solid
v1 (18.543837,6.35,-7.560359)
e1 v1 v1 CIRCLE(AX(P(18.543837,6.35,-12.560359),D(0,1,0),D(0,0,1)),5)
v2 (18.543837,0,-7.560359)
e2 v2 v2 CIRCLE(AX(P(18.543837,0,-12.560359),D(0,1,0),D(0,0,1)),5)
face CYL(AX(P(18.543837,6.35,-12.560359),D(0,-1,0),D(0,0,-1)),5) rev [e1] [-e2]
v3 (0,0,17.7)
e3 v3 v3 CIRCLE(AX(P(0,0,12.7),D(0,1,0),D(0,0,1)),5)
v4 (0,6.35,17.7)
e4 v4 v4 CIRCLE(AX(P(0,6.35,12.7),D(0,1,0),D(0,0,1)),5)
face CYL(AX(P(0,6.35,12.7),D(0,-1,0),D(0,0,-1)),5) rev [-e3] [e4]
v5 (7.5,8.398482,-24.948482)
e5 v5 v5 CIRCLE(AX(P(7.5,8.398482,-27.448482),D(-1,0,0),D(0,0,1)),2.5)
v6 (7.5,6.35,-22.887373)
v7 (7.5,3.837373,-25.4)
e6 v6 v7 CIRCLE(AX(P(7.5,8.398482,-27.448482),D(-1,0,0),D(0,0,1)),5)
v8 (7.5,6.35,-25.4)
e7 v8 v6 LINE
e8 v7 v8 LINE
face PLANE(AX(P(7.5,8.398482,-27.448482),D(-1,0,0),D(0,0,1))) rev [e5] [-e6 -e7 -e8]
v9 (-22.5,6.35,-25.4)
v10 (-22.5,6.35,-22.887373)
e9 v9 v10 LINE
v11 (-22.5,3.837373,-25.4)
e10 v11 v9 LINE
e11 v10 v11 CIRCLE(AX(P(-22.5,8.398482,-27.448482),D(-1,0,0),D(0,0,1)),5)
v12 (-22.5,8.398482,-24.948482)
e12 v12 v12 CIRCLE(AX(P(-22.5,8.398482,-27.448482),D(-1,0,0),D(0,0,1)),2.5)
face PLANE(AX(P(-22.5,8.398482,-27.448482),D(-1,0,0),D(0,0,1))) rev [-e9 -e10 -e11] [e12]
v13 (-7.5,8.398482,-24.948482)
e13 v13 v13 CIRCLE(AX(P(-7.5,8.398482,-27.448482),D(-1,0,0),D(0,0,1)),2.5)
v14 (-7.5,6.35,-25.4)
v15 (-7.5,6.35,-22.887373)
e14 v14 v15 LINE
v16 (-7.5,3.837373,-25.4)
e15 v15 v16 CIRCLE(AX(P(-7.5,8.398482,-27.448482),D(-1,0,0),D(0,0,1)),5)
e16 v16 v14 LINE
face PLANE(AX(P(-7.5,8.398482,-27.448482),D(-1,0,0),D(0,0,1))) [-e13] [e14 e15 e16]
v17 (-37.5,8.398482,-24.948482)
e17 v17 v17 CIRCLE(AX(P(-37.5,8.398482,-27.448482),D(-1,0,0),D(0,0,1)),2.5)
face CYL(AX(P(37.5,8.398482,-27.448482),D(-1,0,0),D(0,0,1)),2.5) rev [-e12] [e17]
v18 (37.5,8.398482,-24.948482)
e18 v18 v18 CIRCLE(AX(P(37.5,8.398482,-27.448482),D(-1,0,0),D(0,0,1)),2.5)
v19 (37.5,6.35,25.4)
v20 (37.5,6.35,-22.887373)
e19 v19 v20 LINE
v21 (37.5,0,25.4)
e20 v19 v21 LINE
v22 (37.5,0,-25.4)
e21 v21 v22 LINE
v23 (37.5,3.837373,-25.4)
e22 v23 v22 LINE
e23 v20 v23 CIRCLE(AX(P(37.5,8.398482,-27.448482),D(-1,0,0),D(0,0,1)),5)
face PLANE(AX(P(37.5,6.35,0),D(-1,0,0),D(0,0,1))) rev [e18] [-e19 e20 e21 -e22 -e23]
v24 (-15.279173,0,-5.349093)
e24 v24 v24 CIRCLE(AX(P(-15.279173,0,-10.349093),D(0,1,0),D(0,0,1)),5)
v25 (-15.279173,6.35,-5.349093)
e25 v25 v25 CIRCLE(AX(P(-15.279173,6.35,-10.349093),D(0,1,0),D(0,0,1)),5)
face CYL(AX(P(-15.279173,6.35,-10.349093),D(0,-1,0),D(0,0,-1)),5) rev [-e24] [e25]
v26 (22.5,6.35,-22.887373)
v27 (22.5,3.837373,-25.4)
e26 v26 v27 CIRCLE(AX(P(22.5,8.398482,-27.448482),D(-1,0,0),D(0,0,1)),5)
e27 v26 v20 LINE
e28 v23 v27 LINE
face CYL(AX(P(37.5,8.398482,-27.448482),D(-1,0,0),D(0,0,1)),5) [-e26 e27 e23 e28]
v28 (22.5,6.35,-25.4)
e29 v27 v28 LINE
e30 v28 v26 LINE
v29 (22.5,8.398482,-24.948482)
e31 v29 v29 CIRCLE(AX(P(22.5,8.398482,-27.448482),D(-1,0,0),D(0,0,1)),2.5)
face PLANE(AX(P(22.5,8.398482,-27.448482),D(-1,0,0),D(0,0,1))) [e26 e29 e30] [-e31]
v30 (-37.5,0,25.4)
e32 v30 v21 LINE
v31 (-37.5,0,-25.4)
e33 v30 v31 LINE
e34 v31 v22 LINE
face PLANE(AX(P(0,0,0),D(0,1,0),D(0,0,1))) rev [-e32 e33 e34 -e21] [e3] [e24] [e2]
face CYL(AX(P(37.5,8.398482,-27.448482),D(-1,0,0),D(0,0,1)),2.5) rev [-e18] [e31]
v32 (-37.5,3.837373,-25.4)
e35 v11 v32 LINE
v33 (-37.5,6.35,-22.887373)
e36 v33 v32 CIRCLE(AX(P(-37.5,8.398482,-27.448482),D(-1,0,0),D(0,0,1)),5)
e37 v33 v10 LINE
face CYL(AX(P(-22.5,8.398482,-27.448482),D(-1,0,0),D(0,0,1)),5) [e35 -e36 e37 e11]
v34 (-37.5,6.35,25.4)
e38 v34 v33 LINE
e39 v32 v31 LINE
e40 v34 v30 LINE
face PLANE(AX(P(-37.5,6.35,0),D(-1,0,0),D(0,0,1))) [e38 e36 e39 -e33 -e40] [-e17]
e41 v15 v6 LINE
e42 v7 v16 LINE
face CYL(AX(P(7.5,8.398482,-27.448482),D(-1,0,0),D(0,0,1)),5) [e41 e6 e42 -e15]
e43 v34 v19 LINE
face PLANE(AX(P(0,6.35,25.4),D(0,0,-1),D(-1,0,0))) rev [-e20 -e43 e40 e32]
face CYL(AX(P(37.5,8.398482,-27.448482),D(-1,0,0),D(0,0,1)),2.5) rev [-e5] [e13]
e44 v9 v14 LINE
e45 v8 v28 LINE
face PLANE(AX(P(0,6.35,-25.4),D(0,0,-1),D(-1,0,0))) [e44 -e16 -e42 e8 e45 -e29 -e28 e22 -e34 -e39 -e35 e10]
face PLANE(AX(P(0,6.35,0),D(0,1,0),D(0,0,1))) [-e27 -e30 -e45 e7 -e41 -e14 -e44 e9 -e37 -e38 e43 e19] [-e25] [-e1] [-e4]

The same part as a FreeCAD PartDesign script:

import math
import FreeCAD as App
import Part
import Sketcher
from FreeCAD import Vector
Q = App.Units.Quantity

doc = App.newDocument("Part")
body = doc.addObject("PartDesign::Body", "Body")

# Sketch on XZ plane
sketch1 = body.newObject("Sketcher::SketchObject", "Sketch")
sketch1.AttachmentSupport = (doc.getObject("XZ_Plane"), [""])
sketch1.MapMode = "FlatFace"
sketch1.addGeometry(Part.LineSegment(Vector(37.5, -25.4, 0), Vector(-37.5, -25.4, 0)), False)
sketch1.addGeometry(Part.LineSegment(Vector(-37.5, -25.4, 0), Vector(-37.5, 25.4, 0)), False)
sketch1.addGeometry(Part.LineSegment(Vector(-37.5, 25.4, 0), Vector(37.5, 25.4, 0)), False)
sketch1.addGeometry(Part.LineSegment(Vector(37.5, 25.4, 0), Vector(37.5, -25.4, 0)), False)
sketch1.addGeometry(Part.Circle(Vector(-15.279173, -10.349093, 0), Vector(0, 0, 1), 5), False)
sketch1.addGeometry(Part.Circle(Vector(18.543837, -12.560359, 0), Vector(0, 0, 1), 5), False)
sketch1.addGeometry(Part.ArcOfCircle(Part.Circle(Vector(0, 12.7, 0), Vector(0, 0, 1), 5), math.radians(90), math.radians(270)), False)
sketch1.addGeometry(Part.ArcOfCircle(Part.Circle(Vector(0, 12.7, 0), Vector(0, 0, 1), 5), math.radians(-90), math.radians(0)), False)
sketch1.addGeometry(Part.ArcOfCircle(Part.Circle(Vector(0, 12.7, 0), Vector(0, 0, 1), 5), math.radians(0), math.radians(90)), False)
sketch1.addConstraint(Sketcher.Constraint("Coincident", 0, 2, 1, 1))
sketch1.addConstraint(Sketcher.Constraint("Coincident", 1, 2, 2, 1))
sketch1.addConstraint(Sketcher.Constraint("Coincident", 2, 2, 3, 1))
sketch1.addConstraint(Sketcher.Constraint("Coincident", 3, 2, 0, 1))
sketch1.addConstraint(Sketcher.Constraint("Tangent", 6, 2, 7, 1))
sketch1.addConstraint(Sketcher.Constraint("Tangent", 7, 2, 8, 1))
sketch1.addConstraint(Sketcher.Constraint("Tangent", 8, 2, 6, 1))
sketch1.addConstraint(Sketcher.Constraint("Horizontal", 0))
sketch1.addConstraint(Sketcher.Constraint("Vertical", 1))
sketch1.addConstraint(Sketcher.Constraint("Horizontal", 2))
sketch1.addConstraint(Sketcher.Constraint("Vertical", 3))
sketch1.addConstraint(Sketcher.Constraint("Equal", 4, 5))
sketch1.addConstraint(Sketcher.Constraint("Equal", 5, 6))
sketch1.addConstraint(Sketcher.Constraint("Symmetric", 0, 2, 2, 2, -1, 1))
sketch1.addConstraint(Sketcher.Constraint("PointOnObject", 6, 3, -2))
sketch1.addConstraint(Sketcher.Constraint("PointOnObject", 6, 2, -2))
sketch1.addConstraint(Sketcher.Constraint("PointOnObject", 8, 2, -2))
sketch1.addConstraint(Sketcher.Constraint("Horizontal", 8, 3, 7, 2))
sketch1.addConstraint(Sketcher.Constraint("Diameter", 4, Q("10 mm")))
sketch1.addConstraint(Sketcher.Constraint("DistanceX", 0, 2, 0, 1, Q("75 mm")))
sketch1.addConstraint(Sketcher.Constraint("DistanceY", 1, 1, 1, 2, Q("50.8 mm")))
sketch1.addConstraint(Sketcher.Constraint("DistanceY", -1, 1, 6, 3, Q("12.7 mm")))
sketch1.addConstraint(Sketcher.Constraint("DistanceY", 5, 3, -1, 1, Q("12.560359 mm")))
sketch1.addConstraint(Sketcher.Constraint("DistanceX", 4, 3, 5, 3, Q("33.82301 mm")))
sketch1.addConstraint(Sketcher.Constraint("DistanceX", 4, 3, -1, 1, Q("15.279173 mm")))
sketch1.addConstraint(Sketcher.Constraint("DistanceY", 4, 3, -1, 1, Q("10.349093 mm")))
pad1 = body.newObject("PartDesign::Pad", "Pad")
pad1.Profile = sketch1
pad1.Length = 6.35
pad1.Reversed = True

# Sketch on YZ plane
sketch2 = body.newObject("Sketcher::SketchObject", "Sketch001")
sketch2.AttachmentSupport = (doc.getObject("YZ_Plane"), [""])
sketch2.MapMode = "FlatFace"
sketch2.AttachmentOffset = App.Placement(Vector(0, 0, -37.5), App.Rotation())
sketch2.addGeometry(Part.Circle(Vector(8.398482, -27.448482, 0), Vector(0, 0, 1), 5), False)
sketch2.addConstraint(Sketcher.Constraint("Diameter", 0, Q("10 mm")))
sketch2.addConstraint(Sketcher.Constraint("DistanceX", -1, 1, 0, 3, Q("8.398482 mm")))
sketch2.addConstraint(Sketcher.Constraint("DistanceY", 0, 3, -1, 1, Q("27.448482 mm")))
pad2 = body.newObject("PartDesign::Pad", "Pad001")
pad2.Profile = sketch2
pad2.Length = 15
doc.recompute()

linearpattern = body.newObject("PartDesign::LinearPattern", "LinearPattern")
linearpattern.Originals = [pad2]
linearpattern.Direction = (doc.getObject("X_Axis"), [""])
linearpattern.Mode = "offset"
linearpattern.Offset = 30
linearpattern.Occurrences = 3
body.Tip = linearpattern

# Sketch on YZ plane
sketch3 = body.newObject("Sketcher::SketchObject", "Sketch002")
sketch3.AttachmentSupport = (doc.getObject("YZ_Plane"), [""])
sketch3.MapMode = "FlatFace"
sketch3.AttachmentOffset = App.Placement(Vector(0, 0, -37.5), App.Rotation())
sketch3.addGeometry(Part.Circle(Vector(8.398482, -27.448482, 0), Vector(0, 0, 1), 2.5), False)
sketch3.addConstraint(Sketcher.Constraint("Diameter", 0, Q("5 mm")))
sketch3.addConstraint(Sketcher.Constraint("DistanceX", -1, 1, 0, 3, Q("8.398482 mm")))
sketch3.addConstraint(Sketcher.Constraint("DistanceY", 0, 3, -1, 1, Q("27.448482 mm")))
pocket1 = body.newObject("PartDesign::Pocket", "Pocket")
pocket1.Profile = sketch3
pocket1.Type = "ThroughAll"
pocket1.Reversed = True

doc.recompute()
